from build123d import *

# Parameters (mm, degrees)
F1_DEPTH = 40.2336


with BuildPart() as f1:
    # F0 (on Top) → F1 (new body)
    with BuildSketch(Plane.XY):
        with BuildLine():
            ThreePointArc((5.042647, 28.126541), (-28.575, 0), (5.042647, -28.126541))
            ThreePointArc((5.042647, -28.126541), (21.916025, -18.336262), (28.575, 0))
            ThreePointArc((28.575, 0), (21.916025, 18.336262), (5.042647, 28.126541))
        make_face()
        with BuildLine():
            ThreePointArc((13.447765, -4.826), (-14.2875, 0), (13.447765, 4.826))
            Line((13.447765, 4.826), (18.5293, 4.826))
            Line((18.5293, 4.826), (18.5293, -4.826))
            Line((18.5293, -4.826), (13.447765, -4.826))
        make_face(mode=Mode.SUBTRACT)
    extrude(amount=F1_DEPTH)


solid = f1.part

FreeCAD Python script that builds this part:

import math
import FreeCAD as App
import Part
import Sketcher

V = App.Vector
Q = App.Units.Quantity

doc = App.newDocument("Part")
body = doc.addObject("PartDesign::Body", "Body")

sketch1 = body.newObject("Sketcher::SketchObject", "Sketch")
sketch1.AttachmentSupport = (doc.getObject("XY_Plane"), [""])
sketch1.MapMode = "FlatFace"
sketch1.addGeometry([
    Part.ArcOfCircle(Part.Circle(V(0, 0, 0), V(0, 0, 1), 29), math.radians(80), math.radians(280)),
    Part.ArcOfCircle(Part.Circle(V(0, 0, 0), V(0, 0, 1), 29), math.radians(-80), math.radians(0)),
    Part.ArcOfCircle(Part.Circle(V(0, 0, 0), V(0, 0, 1), 29), math.radians(0), math.radians(80)),
    Part.LineSegment(V(19, -5, 0), V(13, -5, 0)),
    Part.ArcOfCircle(Part.Circle(V(0, 0, 0), V(0, 0, 1), 14), math.radians(20), math.radians(340)),
    Part.LineSegment(V(13, 5, 0), V(19, 5, 0)),
    Part.LineSegment(V(19, 5, 0), V(19, -5, 0)),
], False)
sketch1.addConstraint([
    Sketcher.Constraint("Tangent", 0, 2, 1, 1),
    Sketcher.Constraint("Tangent", 1, 2, 2, 1),
    Sketcher.Constraint("Tangent", 2, 2, 0, 1),
    Sketcher.Constraint("Coincident", 3, 2, 4, 2),
    Sketcher.Constraint("Coincident", 4, 1, 5, 1),
    Sketcher.Constraint("Coincident", 5, 2, 6, 1),
    Sketcher.Constraint("Coincident", 6, 2, 3, 1),
    Sketcher.Constraint("Horizontal", 3),
    Sketcher.Constraint("Horizontal", 5),
    Sketcher.Constraint("Vertical", 6),
    Sketcher.Constraint("Coincident", 0, 3, -1, 1),
    Sketcher.Constraint("Coincident", 4, 3, -1, 1),
    Sketcher.Constraint("PointOnObject", 1, 2, -1),
    Sketcher.Constraint("Vertical", 0, 2, 2, 2),
    Sketcher.Constraint("Vertical", 3, 2, 4, 1),
    Sketcher.Constraint("Radius", 0, Q("1.125 in")),
    Sketcher.Constraint("Radius", 4, Q("0.5625 in")),
    Sketcher.Constraint("DistanceY", 6, 2, 6, 1, Q("0.38 in")),
    Sketcher.Constraint("DistanceX", -1, 1, 5, 2, Q("0.7295 in")),
    Sketcher.Constraint("DistanceY", 0, 2, -1, 1, Q("28.126541 mm")),
])
pad1 = body.newObject("PartDesign::Pad", "Pad")
pad1.Profile = sketch1
pad1.Length = Q("1.584 in")

doc.recompute()
